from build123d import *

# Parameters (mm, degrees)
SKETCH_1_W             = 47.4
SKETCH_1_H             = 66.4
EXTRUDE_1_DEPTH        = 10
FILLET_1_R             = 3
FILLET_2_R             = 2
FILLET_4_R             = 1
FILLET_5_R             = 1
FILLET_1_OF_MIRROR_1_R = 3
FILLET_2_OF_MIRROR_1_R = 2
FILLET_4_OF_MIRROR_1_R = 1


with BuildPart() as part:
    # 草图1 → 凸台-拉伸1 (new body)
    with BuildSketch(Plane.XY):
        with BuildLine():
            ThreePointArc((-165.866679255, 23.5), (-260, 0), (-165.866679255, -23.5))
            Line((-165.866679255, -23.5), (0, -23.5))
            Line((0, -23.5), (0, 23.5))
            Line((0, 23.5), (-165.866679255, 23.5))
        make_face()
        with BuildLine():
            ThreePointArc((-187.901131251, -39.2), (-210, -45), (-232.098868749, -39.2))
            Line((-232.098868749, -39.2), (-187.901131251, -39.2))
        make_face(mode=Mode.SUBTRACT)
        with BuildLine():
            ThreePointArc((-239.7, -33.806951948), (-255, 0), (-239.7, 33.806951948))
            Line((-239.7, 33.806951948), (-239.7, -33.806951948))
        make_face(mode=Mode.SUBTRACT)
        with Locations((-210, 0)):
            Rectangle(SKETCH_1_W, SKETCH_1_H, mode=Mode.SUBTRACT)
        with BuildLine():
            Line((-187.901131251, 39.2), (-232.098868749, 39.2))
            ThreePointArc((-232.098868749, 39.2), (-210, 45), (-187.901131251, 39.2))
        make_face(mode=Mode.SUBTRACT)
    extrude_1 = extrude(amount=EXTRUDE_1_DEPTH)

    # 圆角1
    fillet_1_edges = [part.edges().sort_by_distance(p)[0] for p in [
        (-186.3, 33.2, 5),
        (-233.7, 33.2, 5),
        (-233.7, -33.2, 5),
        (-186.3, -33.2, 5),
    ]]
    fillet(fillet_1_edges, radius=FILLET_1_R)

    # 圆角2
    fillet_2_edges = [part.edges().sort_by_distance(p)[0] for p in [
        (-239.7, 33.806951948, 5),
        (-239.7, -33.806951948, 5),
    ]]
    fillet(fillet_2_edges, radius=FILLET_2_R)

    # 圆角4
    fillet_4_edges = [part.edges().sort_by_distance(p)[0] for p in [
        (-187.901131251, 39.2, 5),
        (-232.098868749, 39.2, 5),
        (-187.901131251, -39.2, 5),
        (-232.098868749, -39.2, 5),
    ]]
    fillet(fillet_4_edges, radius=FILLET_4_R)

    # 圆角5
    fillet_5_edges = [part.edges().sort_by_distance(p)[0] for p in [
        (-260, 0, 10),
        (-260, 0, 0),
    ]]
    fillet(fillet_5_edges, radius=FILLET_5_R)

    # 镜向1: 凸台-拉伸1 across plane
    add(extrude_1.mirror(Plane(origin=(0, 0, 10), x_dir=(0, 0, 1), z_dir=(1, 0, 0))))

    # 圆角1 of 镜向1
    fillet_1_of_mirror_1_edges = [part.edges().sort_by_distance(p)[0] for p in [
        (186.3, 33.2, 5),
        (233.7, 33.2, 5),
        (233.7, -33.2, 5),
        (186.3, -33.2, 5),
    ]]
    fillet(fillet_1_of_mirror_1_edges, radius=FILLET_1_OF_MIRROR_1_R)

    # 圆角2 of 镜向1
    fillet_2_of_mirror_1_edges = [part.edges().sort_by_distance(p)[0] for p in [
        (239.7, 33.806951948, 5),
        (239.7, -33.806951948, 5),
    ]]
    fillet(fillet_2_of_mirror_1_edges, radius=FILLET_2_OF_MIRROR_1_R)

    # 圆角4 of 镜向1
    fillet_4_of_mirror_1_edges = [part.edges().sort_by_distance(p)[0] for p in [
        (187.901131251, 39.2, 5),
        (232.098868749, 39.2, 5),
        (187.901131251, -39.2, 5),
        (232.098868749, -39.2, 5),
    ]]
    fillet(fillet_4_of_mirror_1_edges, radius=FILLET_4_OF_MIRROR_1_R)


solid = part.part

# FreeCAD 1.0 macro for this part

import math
import FreeCAD as App
import Part
import Sketcher

V = App.Vector


def edges_at(feature, points):
    """Names of the edges that pass closest to the given points."""
    edges = feature.Shape.Edges
    near = lambda p: min(range(len(edges)), key=lambda i: edges[i].distToShape(Part.Vertex(*p))[0])
    return sorted({f"Edge{near(p) + 1}" for p in points})


def add_polygon(sketch, points):
    """Adds a closed chain of lines whose ends are joined by coincident constraints."""
    first, n = sketch.GeometryCount, len(points)
    for a, b in zip(points, points[1:] + points[:1]):
        sketch.addGeometry(Part.LineSegment(App.Vector(*a, 0), App.Vector(*b, 0)), False)
    for i in range(n):
        sketch.addConstraint(Sketcher.Constraint("Coincident", first + i, 2, first + (i + 1) % n, 1))

doc = App.newDocument("Part")
body = doc.addObject("PartDesign::Body", "Body")

sketch1 = body.newObject("Sketcher::SketchObject", "Sketch")
sketch1.AttachmentSupport = (doc.getObject("XY_Plane"), [""])
sketch1.MapMode = "FlatFace"
sketch1.addGeometry(Part.ArcOfCircle(Part.Circle(V(-210, 0, 0), V(0, 0, 1), 50), math.radians(28.034297), math.radians(331.965703)), False)
sketch1.addGeometry(Part.LineSegment(V(-165.866679, -23.5, 0), V(0, -23.5, 0)), False)
sketch1.addGeometry(Part.LineSegment(V(0, -23.5, 0), V(0, 23.5, 0)), False)
sketch1.addGeometry(Part.LineSegment(V(0, 23.5, 0), V(-165.866679, 23.5, 0)), False)
sketch1.addGeometry(Part.LineSegment(V(-232.098869, -39.2, 0), V(-187.901131, -39.2, 0)), False)
sketch1.addGeometry(Part.ArcOfCircle(Part.Circle(V(-210, 0, 0), V(0, 0, 1), 45), math.radians(-119.411984), math.radians(-60.588016)), False)
sketch1.addGeometry(Part.LineSegment(V(-239.7, 33.806952, 0), V(-239.7, -33.806952, 0)), False)
sketch1.addGeometry(Part.ArcOfCircle(Part.Circle(V(-210, 0, 0), V(0, 0, 1), 45), math.radians(131.299873), math.radians(228.700127)), False)
add_polygon(sketch1, [(-186.3, -33.2), (-233.7, -33.2), (-233.7, 33.2), (-186.3, 33.2)])
sketch1.addGeometry(Part.ArcOfCircle(Part.Circle(V(-210, 0, 0), V(0, 0, 1), 45), math.radians(60.588016), math.radians(119.411984)), False)
sketch1.addGeometry(Part.LineSegment(V(-187.901131, 39.2, 0), V(-232.098869, 39.2, 0)), False)
sketch1.addConstraint([
    Sketcher.Constraint("Coincident", 0, 2, 1, 1),
    Sketcher.Constraint("Coincident", 1, 2, 2, 1),
    Sketcher.Constraint("Coincident", 2, 2, 3, 1),
    Sketcher.Constraint("Coincident", 3, 2, 0, 1),
    Sketcher.Constraint("Coincident", 4, 1, 5, 1),
    Sketcher.Constraint("Coincident", 5, 2, 4, 2),
    Sketcher.Constraint("Coincident", 6, 1, 7, 1),
    Sketcher.Constraint("Coincident", 7, 2, 6, 2),
    Sketcher.Constraint("Coincident", 12, 1, 13, 1),
    Sketcher.Constraint("Coincident", 13, 2, 12, 2),
    Sketcher.Constraint("Horizontal", 1),
    Sketcher.Constraint("Vertical", 2),
    Sketcher.Constraint("Horizontal", 3),
    Sketcher.Constraint("Horizontal", 4),
    Sketcher.Constraint("Vertical", 6),
    Sketcher.Constraint("Horizontal", 8),
    Sketcher.Constraint("Vertical", 9),
    Sketcher.Constraint("Horizontal", 10),
    Sketcher.Constraint("Vertical", 11),
    Sketcher.Constraint("Horizontal", 13),
    Sketcher.Constraint("Coincident", 5, 3, 0, 3),
    Sketcher.Constraint("Coincident", 7, 3, 0, 3),
    Sketcher.Constraint("Coincident", 12, 3, 0, 3),
    Sketcher.Constraint("Equal", 5, 7),
    Sketcher.Constraint("Equal", 7, 12),
    Sketcher.Constraint("Symmetric", 1, 2, 2, 2, -1, 1),
    Sketcher.Constraint("Symmetric", 5, 2, 12, 1, -1),
    Sketcher.Constraint("Radius", 0, 50.0),
    Sketcher.Constraint("Radius", 5, 45.0),
    Sketcher.Constraint("DistanceY", 2, 1, 2, 2, 47.0),
    Sketcher.Constraint("DistanceX", 8, 2, 8, 1, 47.4),
    Sketcher.Constraint("DistanceY", 9, 1, 9, 2, 66.4),
    Sketcher.Constraint("DistanceX", 0, 3, -1, 1, 210.0),
    Sketcher.Constraint("DistanceX", 7, 2, 8, 2, 6.0),
    Sketcher.Constraint("DistanceY", 4, 1, 8, 2, 6.0),
    Sketcher.Constraint("DistanceY", 10, 2, 12, 1, 6.0),
    Sketcher.Constraint("DistanceX", 6, 1, -1, 1, 239.7),
])
pad1 = body.newObject("PartDesign::Pad", "Pad")
pad1.Profile = sketch1
pad1.Length = 10
doc.recompute()

fillet = body.newObject("PartDesign::Fillet", "Fillet")
fillet.Base = (pad1, edges_at(pad1, [
    (-186.3, 33.2, 5),
    (-233.7, 33.2, 5),
    (-233.7, -33.2, 5),
    (-186.3, -33.2, 5),
]))
fillet.Radius = 3
doc.recompute()

fillet2 = body.newObject("PartDesign::Fillet", "Fillet001")
fillet2.Base = (fillet, edges_at(fillet, [(-239.7, 33.807, 5), (-239.7, -33.807, 5)]))
fillet2.Radius = 2
doc.recompute()

fillet3 = body.newObject("PartDesign::Fillet", "Fillet002")
fillet3.Base = (fillet2, edges_at(fillet2, [
    (-187.901, 39.2, 5),
    (-232.099, 39.2, 5),
    (-187.901, -39.2, 5),
    (-232.099, -39.2, 5),
]))
fillet3.Radius = 1
doc.recompute()

fillet4 = body.newObject("PartDesign::Fillet", "Fillet003")
fillet4.Base = (fillet3, edges_at(fillet3, [(-260, 0, 10), (-260, 0, 0)]))
fillet4.Radius = 1
doc.recompute()

mirrored = body.newObject("PartDesign::Mirrored", "Mirrored")
mirrored.Originals = [pad1]
mirrored.MirrorPlane = (doc.getObject("YZ_Plane"), [""])
body.Tip = mirrored
doc.recompute()

fillet5 = body.newObject("PartDesign::Fillet", "Fillet004")
fillet5.Base = (mirrored, edges_at(mirrored, [
    (186.3, 33.2, 5),
    (233.7, 33.2, 5),
    (233.7, -33.2, 5),
    (186.3, -33.2, 5),
]))
fillet5.Radius = 3
doc.recompute()

fillet6 = body.newObject("PartDesign::Fillet", "Fillet005")
fillet6.Base = (fillet5, edges_at(fillet5, [(239.7, 33.807, 5), (239.7, -33.807, 5)]))
fillet6.Radius = 2
doc.recompute()

fillet7 = body.newObject("PartDesign::Fillet", "Fillet006")
fillet7.Base = (fillet6, edges_at(fillet6, [
    (187.901, 39.2, 5),
    (232.099, 39.2, 5),
    (187.901, -39.2, 5),
    (232.099, -39.2, 5),
]))
fillet7.Radius = 1

doc.recompute()
